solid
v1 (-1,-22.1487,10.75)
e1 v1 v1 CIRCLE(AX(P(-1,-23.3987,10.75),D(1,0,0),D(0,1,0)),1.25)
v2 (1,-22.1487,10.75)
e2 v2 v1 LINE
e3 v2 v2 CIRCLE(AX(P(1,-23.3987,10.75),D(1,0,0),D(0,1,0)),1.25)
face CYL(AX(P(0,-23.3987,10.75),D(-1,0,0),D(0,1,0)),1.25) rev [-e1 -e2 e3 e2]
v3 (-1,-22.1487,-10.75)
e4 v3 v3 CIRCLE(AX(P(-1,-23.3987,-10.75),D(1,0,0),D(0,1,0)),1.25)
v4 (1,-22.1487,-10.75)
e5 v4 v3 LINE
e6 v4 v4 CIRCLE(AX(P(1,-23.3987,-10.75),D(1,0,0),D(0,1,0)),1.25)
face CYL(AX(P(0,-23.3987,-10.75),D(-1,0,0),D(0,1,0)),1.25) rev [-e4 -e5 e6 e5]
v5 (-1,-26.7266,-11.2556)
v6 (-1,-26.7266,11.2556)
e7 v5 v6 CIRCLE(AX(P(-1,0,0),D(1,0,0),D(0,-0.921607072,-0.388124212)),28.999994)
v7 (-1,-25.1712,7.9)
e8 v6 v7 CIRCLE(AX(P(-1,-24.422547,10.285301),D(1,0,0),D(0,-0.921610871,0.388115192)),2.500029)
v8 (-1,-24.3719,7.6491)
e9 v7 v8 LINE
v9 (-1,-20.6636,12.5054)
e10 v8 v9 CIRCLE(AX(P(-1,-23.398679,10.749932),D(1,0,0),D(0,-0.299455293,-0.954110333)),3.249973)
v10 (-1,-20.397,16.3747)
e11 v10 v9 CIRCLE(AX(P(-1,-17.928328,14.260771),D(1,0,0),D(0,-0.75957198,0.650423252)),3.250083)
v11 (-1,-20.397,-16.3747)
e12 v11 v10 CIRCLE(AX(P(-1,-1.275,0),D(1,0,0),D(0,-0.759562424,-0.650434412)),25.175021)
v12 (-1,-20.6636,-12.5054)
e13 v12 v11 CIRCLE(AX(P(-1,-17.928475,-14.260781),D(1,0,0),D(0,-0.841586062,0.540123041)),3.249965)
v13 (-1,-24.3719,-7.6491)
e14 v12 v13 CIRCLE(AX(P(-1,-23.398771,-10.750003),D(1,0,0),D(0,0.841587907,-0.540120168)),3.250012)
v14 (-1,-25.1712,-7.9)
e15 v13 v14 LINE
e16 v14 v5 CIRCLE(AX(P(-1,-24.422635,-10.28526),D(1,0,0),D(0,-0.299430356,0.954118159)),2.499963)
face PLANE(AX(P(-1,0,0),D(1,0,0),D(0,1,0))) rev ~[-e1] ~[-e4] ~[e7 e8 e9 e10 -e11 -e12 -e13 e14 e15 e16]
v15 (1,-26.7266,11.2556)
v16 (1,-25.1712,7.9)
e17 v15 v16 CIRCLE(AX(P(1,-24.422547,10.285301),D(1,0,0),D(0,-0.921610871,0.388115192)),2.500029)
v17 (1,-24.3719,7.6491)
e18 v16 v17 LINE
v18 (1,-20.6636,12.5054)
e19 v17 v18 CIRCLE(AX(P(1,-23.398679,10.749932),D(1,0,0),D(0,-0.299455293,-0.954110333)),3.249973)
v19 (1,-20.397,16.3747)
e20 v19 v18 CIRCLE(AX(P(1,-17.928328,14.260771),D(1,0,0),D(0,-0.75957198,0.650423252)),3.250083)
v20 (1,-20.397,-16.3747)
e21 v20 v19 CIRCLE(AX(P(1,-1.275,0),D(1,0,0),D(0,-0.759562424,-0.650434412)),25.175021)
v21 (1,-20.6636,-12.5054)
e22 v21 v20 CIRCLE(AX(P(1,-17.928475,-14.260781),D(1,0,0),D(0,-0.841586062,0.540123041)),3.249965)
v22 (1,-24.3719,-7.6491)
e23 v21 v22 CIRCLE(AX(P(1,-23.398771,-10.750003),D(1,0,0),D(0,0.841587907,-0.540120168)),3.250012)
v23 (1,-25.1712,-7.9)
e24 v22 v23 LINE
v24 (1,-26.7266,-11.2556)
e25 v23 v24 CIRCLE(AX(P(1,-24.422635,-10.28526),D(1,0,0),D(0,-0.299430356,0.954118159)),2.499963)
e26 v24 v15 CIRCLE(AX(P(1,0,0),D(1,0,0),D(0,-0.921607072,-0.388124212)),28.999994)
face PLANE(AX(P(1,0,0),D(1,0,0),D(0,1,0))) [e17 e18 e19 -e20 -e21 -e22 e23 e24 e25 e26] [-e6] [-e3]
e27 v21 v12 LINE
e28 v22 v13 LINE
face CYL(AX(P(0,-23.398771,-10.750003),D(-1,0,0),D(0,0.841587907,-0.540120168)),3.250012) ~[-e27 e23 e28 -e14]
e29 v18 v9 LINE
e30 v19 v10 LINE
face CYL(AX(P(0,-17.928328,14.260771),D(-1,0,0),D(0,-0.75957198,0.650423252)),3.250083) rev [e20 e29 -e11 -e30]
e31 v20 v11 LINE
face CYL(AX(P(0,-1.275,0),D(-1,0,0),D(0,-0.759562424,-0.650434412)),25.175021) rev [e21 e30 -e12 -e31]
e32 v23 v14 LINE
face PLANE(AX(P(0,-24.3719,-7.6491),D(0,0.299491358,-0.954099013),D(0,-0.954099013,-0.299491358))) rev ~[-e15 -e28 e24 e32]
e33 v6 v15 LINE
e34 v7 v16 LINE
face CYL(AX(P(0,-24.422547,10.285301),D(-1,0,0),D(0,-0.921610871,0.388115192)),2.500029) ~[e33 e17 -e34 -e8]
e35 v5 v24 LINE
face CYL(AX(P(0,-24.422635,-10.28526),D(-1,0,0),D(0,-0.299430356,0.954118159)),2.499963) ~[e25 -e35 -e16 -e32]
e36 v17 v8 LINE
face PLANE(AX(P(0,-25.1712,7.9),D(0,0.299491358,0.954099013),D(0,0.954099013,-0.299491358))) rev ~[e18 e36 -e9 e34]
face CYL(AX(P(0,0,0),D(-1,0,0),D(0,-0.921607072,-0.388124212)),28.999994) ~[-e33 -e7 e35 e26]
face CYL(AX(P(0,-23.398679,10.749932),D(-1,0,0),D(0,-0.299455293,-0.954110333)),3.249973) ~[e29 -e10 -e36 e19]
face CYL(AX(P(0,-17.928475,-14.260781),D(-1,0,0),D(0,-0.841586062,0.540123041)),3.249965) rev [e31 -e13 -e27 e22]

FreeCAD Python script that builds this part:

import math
import FreeCAD as App
import Part
import Sketcher

V = App.Vector
Q = App.Units.Quantity

doc = App.newDocument("Part")
body = doc.addObject("PartDesign::Body", "Body")

sketch1 = doc.addObject("Sketcher::SketchObject", "Sketch")
body.addObject(sketch1)
sketch1.AttachmentSupport = (doc.YZ_Plane, [""])
sketch1.MapMode = "FlatFace"
sketch1.addGeometry(Part.ArcOfCircle(Part.Circle(V(-24.4, -10.3, 0), V(0, 0, 1), 2.5), math.radians(107), math.radians(203)), False)
sketch1.addGeometry(Part.ArcOfCircle(Part.Circle(V(0, 0, 0), V(0, 0, 1), 29), math.radians(-157), math.radians(157)), False)
sketch1.addGeometry(Part.ArcOfCircle(Part.Circle(V(-24.4, 10.3, 0), V(0, 0, 1), 2.5), math.radians(157), math.radians(253)), False)
sketch1.addGeometry(Part.LineSegment(V(-25.2, 7.9, 0), V(-24.4, 7.6, 0)), False)
sketch1.addGeometry(Part.ArcOfCircle(Part.Circle(V(-23.4, 10.8, 0), V(0, 0, 1), 3.3), math.radians(-107), math.radians(33)), False)
sketch1.addGeometry(Part.ArcOfCircle(Part.Circle(V(-17.9, 14.3, 0), V(0, 0, 1), 3.3), math.radians(139), math.radians(213)), False)
sketch1.addGeometry(Part.ArcOfCircle(Part.Circle(V(-1.3, 0, 0), V(0, 0, 1), 25.2), math.radians(-139), math.radians(139)), False)
sketch1.addGeometry(Part.ArcOfCircle(Part.Circle(V(-17.9, -14.3, 0), V(0, 0, 1), 3.3), math.radians(147), math.radians(221)), False)
sketch1.addGeometry(Part.ArcOfCircle(Part.Circle(V(-23.4, -10.8, 0), V(0, 0, 1), 3.2), math.radians(-33), math.radians(107)), False)
sketch1.addGeometry(Part.LineSegment(V(-24.4, -7.6, 0), V(-25.2, -7.9, 0)), False)
sketch1.addGeometry(Part.Circle(V(-23.4, -10.8, 0), V(0, 0, 1), 1.2), False)
sketch1.addGeometry(Part.Circle(V(-23.4, 10.8, 0), V(0, 0, 1), 1.2), False)
sketch1.addConstraint(Sketcher.Constraint("Tangent", 0, 2, 1, 1))
sketch1.addConstraint(Sketcher.Constraint("Tangent", 1, 2, 2, 1))
sketch1.addConstraint(Sketcher.Constraint("Tangent", 2, 2, 3, 1))
sketch1.addConstraint(Sketcher.Constraint("Tangent", 3, 2, 4, 1))
sketch1.addConstraint(Sketcher.Constraint("Tangent", 4, 2, 5, 2))
sketch1.addConstraint(Sketcher.Constraint("Tangent", 5, 1, 6, 2))
sketch1.addConstraint(Sketcher.Constraint("Tangent", 6, 1, 7, 2))
sketch1.addConstraint(Sketcher.Constraint("Tangent", 7, 1, 8, 1))
sketch1.addConstraint(Sketcher.Constraint("Tangent", 8, 2, 9, 1))
sketch1.addConstraint(Sketcher.Constraint("Tangent", 9, 2, 0, 1))
sketch1.addConstraint(Sketcher.Constraint("Coincident", 1, 3, -1, 1))
sketch1.addConstraint(Sketcher.Constraint("Coincident", 10, 3, 8, 3))
sketch1.addConstraint(Sketcher.Constraint("Coincident", 11, 3, 4, 3))
sketch1.addConstraint(Sketcher.Constraint("Equal", 0, 2))
sketch1.addConstraint(Sketcher.Constraint("Equal", 4, 5))
sketch1.addConstraint(Sketcher.Constraint("Equal", 5, 7))
sketch1.addConstraint(Sketcher.Constraint("Equal", 7, 8))
sketch1.addConstraint(Sketcher.Constraint("Equal", 10, 11))
sketch1.addConstraint(Sketcher.Constraint("Symmetric", 5, 3, 7, 3, -1))
sketch1.addConstraint(Sketcher.Constraint("Symmetric", 3, 2, 8, 2, -1))
sketch1.addConstraint(Sketcher.Constraint("Radius", 1, Q("29 mm")))
sketch1.addConstraint(Sketcher.Constraint("Diameter", 10, Q("2.5 mm")))
sketch1.addConstraint(Sketcher.Constraint("Radius", 0, Q("2.5 mm")))
sketch1.addConstraint(Sketcher.Constraint("Radius", 4, Q("3.25 mm")))
sketch1.addConstraint(Sketcher.Constraint("Radius", 6, Q("25.175 mm")))
sketch1.addConstraint(Sketcher.Constraint("DistanceY", -1, 1, 2, 2, Q("7.9 mm")))
sketch1.addConstraint(Sketcher.Constraint("DistanceY", 8, 3, 4, 3, Q("21.5 mm")))
sketch1.addConstraint(Sketcher.Constraint("DistanceY", 7, 1, 0, 3, Q("2.22 mm")))
sketch1.addConstraint(Sketcher.Constraint("DistanceX", 6, 3, -1, 1, Q("1.275 mm")))
pad1 = doc.addObject("PartDesign::Pad", "Pad")
body.addObject(pad1)
pad1.Profile = sketch1
pad1.Length = 2
pad1.Midplane = True

doc.recompute()
